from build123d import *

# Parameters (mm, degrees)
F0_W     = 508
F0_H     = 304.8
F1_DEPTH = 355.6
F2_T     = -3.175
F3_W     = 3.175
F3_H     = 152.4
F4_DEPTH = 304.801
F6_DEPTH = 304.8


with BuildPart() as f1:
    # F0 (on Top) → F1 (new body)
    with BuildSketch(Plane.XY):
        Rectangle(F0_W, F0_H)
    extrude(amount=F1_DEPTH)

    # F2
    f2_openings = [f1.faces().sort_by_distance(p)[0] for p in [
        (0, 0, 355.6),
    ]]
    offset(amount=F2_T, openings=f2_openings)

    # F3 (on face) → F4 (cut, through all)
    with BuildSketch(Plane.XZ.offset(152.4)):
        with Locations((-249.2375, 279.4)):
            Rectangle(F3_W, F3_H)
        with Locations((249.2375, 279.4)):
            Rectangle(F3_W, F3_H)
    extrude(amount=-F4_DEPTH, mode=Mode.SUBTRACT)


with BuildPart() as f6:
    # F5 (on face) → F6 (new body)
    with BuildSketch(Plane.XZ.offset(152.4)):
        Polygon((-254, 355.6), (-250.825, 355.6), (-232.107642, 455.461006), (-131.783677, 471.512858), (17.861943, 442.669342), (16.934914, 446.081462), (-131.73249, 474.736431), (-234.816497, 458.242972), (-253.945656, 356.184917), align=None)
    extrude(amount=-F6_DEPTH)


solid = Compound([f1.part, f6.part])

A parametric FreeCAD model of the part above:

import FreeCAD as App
import Part
import Sketcher
from FreeCAD import Vector
Q = App.Units.Quantity


def faces_at(feature, points):
    """Names of the faces that lie closest to the given points."""
    faces = feature.Shape.Faces
    near = lambda p: min(range(len(faces)), key=lambda i: faces[i].distToShape(Part.Vertex(*p))[0])
    return sorted({f"Face{near(p) + 1}" for p in points})


def add_polygon(sketch, points):
    """Adds a closed chain of lines whose ends are joined by coincident constraints."""
    first, n = sketch.GeometryCount, len(points)
    for a, b in zip(points, points[1:] + points[:1]):
        sketch.addGeometry(Part.LineSegment(App.Vector(*a, 0), App.Vector(*b, 0)), False)
    for i in range(n):
        sketch.addConstraint(Sketcher.Constraint("Coincident", first + i, 2, first + (i + 1) % n, 1))

doc = App.newDocument("Part")
body = doc.addObject("PartDesign::Body", "Body")

sketch1 = body.newObject("Sketcher::SketchObject", "Sketch")
sketch1.AttachmentSupport = (doc.getObject("XY_Plane"), [""])
sketch1.MapMode = "FlatFace"
add_polygon(sketch1, [(-254, 152.4), (-254, -152.4), (254, -152.4), (254, 152.4)])
sketch1.addConstraint(Sketcher.Constraint("Vertical", 0))
sketch1.addConstraint(Sketcher.Constraint("Horizontal", 1))
sketch1.addConstraint(Sketcher.Constraint("Vertical", 2))
sketch1.addConstraint(Sketcher.Constraint("Horizontal", 3))
sketch1.addConstraint(Sketcher.Constraint("Symmetric", 0, 2, 2, 2, -1, 1))
sketch1.addConstraint(Sketcher.Constraint("DistanceX", 1, 1, 1, 2, Q("20 in")))
sketch1.addConstraint(Sketcher.Constraint("DistanceY", 0, 2, 0, 1, Q("12 in")))
pad1 = body.newObject("PartDesign::Pad", "Pad")
pad1.Profile = sketch1
pad1.Length = Q("14 in")
doc.recompute()

thickness = body.newObject("PartDesign::Thickness", "Thickness")
thickness.Base = (pad1, faces_at(pad1, [(0, 0, 355.6)]))
thickness.Value = Q("0.125 in")
thickness.Reversed = True
thickness.Join = "Arc"

sketch2 = body.newObject("Sketcher::SketchObject", "Sketch001")
sketch2.AttachmentSupport = (doc.getObject("XZ_Plane"), [""])
sketch2.MapMode = "FlatFace"
sketch2.AttachmentOffset = App.Placement(Vector(0, 0, 6 * 25.4), App.Rotation())
add_polygon(sketch2, [(-250.825, 355.6), (-250.825, 203.2), (-247.65, 203.2), (-247.65, 355.6)])
add_polygon(sketch2, [(247.65, 355.6), (247.65, 203.2), (250.825, 203.2), (250.825, 355.6)])
sketch2.addConstraint(Sketcher.Constraint("Vertical", 0))
sketch2.addConstraint(Sketcher.Constraint("Horizontal", 1))
sketch2.addConstraint(Sketcher.Constraint("Vertical", 2))
sketch2.addConstraint(Sketcher.Constraint("Horizontal", 3))
sketch2.addConstraint(Sketcher.Constraint("Vertical", 4))
sketch2.addConstraint(Sketcher.Constraint("Horizontal", 5))
sketch2.addConstraint(Sketcher.Constraint("Vertical", 6))
sketch2.addConstraint(Sketcher.Constraint("Horizontal", 7))
sketch2.addConstraint(Sketcher.Constraint("Symmetric", 1, 2, 4, 2, -2))
sketch2.addConstraint(Sketcher.Constraint("Symmetric", 3, 2, 6, 2, -2))
sketch2.addConstraint(Sketcher.Constraint("DistanceY", 0, 2, 0, 1, Q("6 in")))
sketch2.addConstraint(Sketcher.Constraint("DistanceY", -1, 1, 0, 2, Q("8 in")))
sketch2.addConstraint(Sketcher.Constraint("DistanceX", 1, 2, 4, 2, Q("19.5 in")))
sketch2.addConstraint(Sketcher.Constraint("DistanceX", 1, 1, 1, 2, Q("0.125 in")))
pocket1 = body.newObject("PartDesign::Pocket", "Pocket")
pocket1.Profile = sketch2
pocket1.Type = "ThroughAll"
body2 = doc.addObject("PartDesign::Body", "Body001")

sketch3 = body2.newObject("Sketcher::SketchObject", "Sketch002")
sketch3.AttachmentSupport = (doc.getObject("XZ_Plane001"), [""])
sketch3.MapMode = "FlatFace"
sketch3.AttachmentOffset = App.Placement(Vector(0, 0, 6 * 25.4), App.Rotation())
add_polygon(sketch3, [(-254, 355.6), (-250.825, 355.6), (-232.107642, 455.461006), (-131.783677, 471.512858), (17.861943, 442.669342), (16.934914, 446.081462), (-131.73249, 474.736431), (-234.816497, 458.242972), (-253.945656, 356.184917)])
sketch3.addConstraint(Sketcher.Constraint("Horizontal", 0))
sketch3.addConstraint(Sketcher.Constraint("Parallel", 3, 5))
sketch3.addConstraint(Sketcher.Constraint("Parallel", 2, 6))
sketch3.addConstraint(Sketcher.Constraint("Parallel", 1, 7))
sketch3.addConstraint(Sketcher.Constraint("Equal", 1, 2))
sketch3.addConstraint(Sketcher.Constraint("Distance", 1, Q("4 in")))
sketch3.addConstraint(Sketcher.Constraint("Distance", 3, Q("6 in")))
sketch3.addConstraint(Sketcher.Constraint("DistanceY", -1, 1, 0, 2, Q("14 in")))
sketch3.addConstraint(Sketcher.Constraint("DistanceX", 8, 2, -1, 1, Q("10 in")))
sketch3.addConstraint(Sketcher.Constraint("DistanceX", 0, 1, 0, 2, Q("0.125 in")))
sketch3.addConstraint(Sketcher.Constraint("Distance", 4, 3.535809))
sketch3.addConstraint(Sketcher.Constraint("Distance", 5, 151.403779))
sketch3.addConstraint(Sketcher.Constraint("Distance", 7, 103.835309))
sketch3.addConstraint(Sketcher.Constraint("DistanceX", 1, 2, -1, 1, 232.107642))
sketch3.addConstraint(Sketcher.Constraint("DistanceY", -1, 1, 2, 2, 471.512858))
sketch3.addConstraint(Sketcher.Constraint("DistanceY", -1, 1, 3, 2, 442.669342))
sketch3.addConstraint(Sketcher.Constraint("DistanceY", -1, 1, 4, 2, 446.081462))
sketch3.addConstraint(Sketcher.Constraint("DistanceY", -1, 1, 6, 2, 458.242972))
pad2 = body2.newObject("PartDesign::Pad", "Pad001")
pad2.Profile = sketch3
pad2.Length = Q("12 in")
pad2.Reversed = True

doc.recompute()
